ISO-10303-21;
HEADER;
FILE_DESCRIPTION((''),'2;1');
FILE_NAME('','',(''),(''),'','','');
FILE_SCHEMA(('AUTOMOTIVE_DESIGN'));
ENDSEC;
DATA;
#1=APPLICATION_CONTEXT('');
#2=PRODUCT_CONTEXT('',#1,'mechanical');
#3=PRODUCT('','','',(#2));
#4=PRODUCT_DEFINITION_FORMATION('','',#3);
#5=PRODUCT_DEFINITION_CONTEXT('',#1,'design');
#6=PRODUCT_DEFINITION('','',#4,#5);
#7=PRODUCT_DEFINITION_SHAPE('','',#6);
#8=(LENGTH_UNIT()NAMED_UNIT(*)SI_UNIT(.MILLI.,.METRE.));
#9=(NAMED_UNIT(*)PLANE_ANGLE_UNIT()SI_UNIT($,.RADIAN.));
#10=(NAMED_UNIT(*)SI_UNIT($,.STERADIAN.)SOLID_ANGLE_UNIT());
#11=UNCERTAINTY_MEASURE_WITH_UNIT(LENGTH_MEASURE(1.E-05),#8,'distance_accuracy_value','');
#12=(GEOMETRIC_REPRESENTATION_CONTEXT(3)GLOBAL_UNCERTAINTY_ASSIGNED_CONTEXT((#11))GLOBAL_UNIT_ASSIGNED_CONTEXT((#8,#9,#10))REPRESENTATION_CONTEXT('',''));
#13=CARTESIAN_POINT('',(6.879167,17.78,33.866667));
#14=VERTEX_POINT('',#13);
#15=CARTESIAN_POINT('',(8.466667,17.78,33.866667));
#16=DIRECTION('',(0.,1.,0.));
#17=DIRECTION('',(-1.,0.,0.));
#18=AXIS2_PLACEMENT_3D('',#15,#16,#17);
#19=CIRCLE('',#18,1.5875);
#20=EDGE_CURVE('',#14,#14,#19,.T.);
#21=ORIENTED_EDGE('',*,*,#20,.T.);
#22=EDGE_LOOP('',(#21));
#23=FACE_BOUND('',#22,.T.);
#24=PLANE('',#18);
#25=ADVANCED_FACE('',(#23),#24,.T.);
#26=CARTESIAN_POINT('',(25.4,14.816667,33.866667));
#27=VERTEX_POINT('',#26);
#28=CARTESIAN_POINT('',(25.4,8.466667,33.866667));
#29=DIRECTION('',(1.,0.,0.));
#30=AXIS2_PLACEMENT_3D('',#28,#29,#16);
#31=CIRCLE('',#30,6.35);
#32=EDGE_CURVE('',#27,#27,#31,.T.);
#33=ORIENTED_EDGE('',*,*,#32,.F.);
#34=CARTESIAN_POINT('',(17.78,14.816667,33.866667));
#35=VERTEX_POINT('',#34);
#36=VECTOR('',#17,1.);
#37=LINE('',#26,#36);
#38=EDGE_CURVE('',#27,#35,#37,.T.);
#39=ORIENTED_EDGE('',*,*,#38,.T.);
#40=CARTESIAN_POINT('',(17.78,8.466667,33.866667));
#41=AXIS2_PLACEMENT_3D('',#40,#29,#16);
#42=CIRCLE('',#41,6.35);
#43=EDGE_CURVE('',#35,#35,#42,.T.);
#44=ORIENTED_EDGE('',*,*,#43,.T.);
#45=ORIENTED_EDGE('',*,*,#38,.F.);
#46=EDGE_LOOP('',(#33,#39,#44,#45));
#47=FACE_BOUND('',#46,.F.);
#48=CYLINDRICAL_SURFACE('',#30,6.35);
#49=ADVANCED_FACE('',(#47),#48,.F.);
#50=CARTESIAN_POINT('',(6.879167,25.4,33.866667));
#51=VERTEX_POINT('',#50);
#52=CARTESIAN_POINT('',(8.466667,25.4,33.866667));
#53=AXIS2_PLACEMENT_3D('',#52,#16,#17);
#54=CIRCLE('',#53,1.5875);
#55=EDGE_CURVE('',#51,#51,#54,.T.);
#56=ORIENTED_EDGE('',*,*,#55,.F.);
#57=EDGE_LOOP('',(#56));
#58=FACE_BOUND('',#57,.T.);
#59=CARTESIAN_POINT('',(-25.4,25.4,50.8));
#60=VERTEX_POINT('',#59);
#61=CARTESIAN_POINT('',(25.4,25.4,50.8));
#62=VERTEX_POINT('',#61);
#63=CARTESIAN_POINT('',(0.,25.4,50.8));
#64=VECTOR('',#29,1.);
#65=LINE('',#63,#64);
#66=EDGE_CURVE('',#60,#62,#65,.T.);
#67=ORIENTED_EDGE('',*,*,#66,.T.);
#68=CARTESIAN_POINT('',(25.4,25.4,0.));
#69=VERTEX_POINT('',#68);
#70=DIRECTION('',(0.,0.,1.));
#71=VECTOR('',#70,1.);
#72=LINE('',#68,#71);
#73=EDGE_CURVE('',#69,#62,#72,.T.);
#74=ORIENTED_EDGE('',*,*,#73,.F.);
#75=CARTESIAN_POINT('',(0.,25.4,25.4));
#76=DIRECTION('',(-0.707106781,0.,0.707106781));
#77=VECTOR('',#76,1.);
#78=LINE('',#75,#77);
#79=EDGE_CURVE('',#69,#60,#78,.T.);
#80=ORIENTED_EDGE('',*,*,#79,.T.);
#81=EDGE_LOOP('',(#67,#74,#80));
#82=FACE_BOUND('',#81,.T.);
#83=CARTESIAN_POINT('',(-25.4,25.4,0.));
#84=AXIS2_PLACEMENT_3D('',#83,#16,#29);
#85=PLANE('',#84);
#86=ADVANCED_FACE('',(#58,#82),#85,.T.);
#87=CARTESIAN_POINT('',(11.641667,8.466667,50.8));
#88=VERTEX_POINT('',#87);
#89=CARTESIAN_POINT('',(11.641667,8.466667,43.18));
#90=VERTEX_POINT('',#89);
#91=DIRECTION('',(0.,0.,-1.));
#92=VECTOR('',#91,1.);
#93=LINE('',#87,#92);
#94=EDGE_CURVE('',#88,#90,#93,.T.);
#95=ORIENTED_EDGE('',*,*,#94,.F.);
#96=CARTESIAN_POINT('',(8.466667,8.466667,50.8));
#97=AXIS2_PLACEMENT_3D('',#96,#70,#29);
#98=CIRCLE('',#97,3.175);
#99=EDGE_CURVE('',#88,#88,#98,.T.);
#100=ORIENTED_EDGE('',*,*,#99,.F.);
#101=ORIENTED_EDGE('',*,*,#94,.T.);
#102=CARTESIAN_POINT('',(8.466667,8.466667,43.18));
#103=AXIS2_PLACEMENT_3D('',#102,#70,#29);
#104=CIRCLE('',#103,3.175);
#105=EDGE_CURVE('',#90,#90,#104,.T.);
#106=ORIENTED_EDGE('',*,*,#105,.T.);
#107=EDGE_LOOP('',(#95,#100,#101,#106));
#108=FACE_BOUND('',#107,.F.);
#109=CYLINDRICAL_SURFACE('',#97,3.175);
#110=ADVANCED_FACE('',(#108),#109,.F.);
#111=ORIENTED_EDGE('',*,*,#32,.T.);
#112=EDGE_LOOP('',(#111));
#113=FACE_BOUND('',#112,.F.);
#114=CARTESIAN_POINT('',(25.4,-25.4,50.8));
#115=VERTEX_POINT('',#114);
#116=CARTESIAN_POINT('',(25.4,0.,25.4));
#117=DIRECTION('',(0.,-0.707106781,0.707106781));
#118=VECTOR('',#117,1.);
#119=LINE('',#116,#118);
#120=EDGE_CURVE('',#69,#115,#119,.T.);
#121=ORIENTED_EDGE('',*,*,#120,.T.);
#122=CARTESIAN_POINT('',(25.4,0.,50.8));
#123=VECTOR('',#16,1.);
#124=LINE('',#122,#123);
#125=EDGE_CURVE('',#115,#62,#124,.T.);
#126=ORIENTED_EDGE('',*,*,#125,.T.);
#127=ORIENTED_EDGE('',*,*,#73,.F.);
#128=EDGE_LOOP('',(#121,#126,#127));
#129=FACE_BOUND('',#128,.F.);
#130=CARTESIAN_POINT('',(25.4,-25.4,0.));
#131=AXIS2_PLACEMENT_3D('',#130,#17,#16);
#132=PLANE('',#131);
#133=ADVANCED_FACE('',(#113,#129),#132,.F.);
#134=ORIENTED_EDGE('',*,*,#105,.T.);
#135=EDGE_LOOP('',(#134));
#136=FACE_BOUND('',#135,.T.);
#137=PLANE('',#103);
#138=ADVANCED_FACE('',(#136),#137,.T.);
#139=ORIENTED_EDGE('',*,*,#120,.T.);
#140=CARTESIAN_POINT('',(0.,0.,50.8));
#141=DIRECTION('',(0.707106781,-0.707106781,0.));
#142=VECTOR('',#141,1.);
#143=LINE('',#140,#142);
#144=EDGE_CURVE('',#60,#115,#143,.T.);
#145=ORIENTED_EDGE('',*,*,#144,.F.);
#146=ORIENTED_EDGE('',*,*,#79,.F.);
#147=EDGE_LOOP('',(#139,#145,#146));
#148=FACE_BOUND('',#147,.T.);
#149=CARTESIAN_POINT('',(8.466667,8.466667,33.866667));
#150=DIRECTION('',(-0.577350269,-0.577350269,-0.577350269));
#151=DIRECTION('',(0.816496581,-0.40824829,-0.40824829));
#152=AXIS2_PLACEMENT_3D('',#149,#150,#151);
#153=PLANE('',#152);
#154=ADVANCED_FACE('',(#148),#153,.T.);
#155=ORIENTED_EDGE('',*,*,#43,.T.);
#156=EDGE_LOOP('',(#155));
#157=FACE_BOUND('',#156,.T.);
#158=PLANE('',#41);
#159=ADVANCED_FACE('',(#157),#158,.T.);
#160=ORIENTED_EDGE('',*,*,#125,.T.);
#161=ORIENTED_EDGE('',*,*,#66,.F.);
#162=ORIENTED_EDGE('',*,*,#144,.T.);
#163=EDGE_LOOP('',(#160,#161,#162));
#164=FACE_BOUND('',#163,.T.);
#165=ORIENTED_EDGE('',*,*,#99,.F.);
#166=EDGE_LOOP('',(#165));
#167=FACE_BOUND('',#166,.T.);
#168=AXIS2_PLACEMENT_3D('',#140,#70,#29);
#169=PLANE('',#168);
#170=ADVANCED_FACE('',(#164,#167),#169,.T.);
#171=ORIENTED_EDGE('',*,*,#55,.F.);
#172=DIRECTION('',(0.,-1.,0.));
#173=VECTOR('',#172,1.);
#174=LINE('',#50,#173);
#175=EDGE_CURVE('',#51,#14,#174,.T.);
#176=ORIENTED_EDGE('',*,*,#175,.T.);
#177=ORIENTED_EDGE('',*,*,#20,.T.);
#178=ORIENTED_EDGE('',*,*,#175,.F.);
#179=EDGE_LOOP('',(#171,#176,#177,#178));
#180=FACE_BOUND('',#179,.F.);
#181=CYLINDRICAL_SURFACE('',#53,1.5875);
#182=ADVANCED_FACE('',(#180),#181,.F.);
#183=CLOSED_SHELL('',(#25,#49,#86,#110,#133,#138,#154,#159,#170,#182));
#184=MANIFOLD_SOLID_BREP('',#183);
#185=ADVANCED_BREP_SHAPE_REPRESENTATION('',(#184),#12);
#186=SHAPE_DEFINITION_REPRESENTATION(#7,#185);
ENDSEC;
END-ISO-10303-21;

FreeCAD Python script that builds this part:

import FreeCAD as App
import Part
import Sketcher
Q = App.Units.Quantity


def add_polygon(sketch, points):
    """Adds a closed chain of lines whose ends are joined by coincident constraints."""
    first, n = sketch.GeometryCount, len(points)
    for a, b in zip(points, points[1:] + points[:1]):
        sketch.addGeometry(Part.LineSegment(App.Vector(*a, 0), App.Vector(*b, 0)), False)
    for i in range(n):
        sketch.addConstraint(Sketcher.Constraint("Coincident", first + i, 2, first + (i + 1) % n, 1))

doc = App.newDocument("Part")
body = doc.addObject("PartDesign::Body", "Body")

sketch1 = body.newObject("Sketcher::SketchObject", "Sketch")
sketch1.AttachmentSupport = (doc.getObject("XY_Plane"), [""])
sketch1.MapMode = "FlatFace"
add_polygon(sketch1, [(-25.4, 25.4), (-25.4, -25.4), (25.4, -25.4), (25.4, 25.4)])
sketch1.addConstraint([
    Sketcher.Constraint("Vertical", 0),
    Sketcher.Constraint("Horizontal", 1),
    Sketcher.Constraint("Vertical", 2),
    Sketcher.Constraint("Horizontal", 3),
    Sketcher.Constraint("Symmetric", 0, 2, 2, 2, -1, 1),
    Sketcher.Constraint("Equal", 3, 0),
    Sketcher.Constraint("DistanceX", 1, 1, 1, 2, Q("2 in")),
])
pad1 = body.newObject("PartDesign::Pad", "Pad")
pad1.Profile = sketch1
pad1.Length = Q("2 in")

sketch2 = body.newObject("Sketcher::SketchObject", "Sketch001")
sketch2.Placement = App.Placement(App.Vector(16.933333, 16.933333, 16.933333), App.Rotation(App.Vector(0.816496581, -0.40824829, -0.40824829), App.Vector(0, -0.707106781, 0.707106781), App.Vector(-0.577350269, -0.577350269, -0.577350269), "ZXY"))
add_polygon(sketch2, [(-51.847533, 17.960512), (-31.10852, -17.960512), (10.369507, -17.960512), (31.10852, 17.960512), (10.369507, 53.881537), (-31.10852, 53.881537)])
sketch2.addConstraint([
    Sketcher.Constraint("Horizontal", 1),
    Sketcher.Constraint("Horizontal", 4),
    Sketcher.Constraint("Symmetric", 0, 2, 2, 2, -1, 1),
    Sketcher.Constraint("Parallel", 0, 3),
    Sketcher.Constraint("Parallel", 2, 5),
    Sketcher.Constraint("Horizontal", 2, 2, 5, 2),
    Sketcher.Constraint("Vertical", 1, 2, 3, 2),
    Sketcher.Constraint("Vertical", 0, 2, 4, 2),
    Sketcher.Constraint("Angle", 0, Q("-60 deg")),
    Sketcher.Constraint("DistanceX", 1, 1, 1, 2, Q("41.478026 mm")),
    Sketcher.Constraint("DistanceX", 0, 2, -1, 1, Q("31.10852 mm")),
])
pocket1 = body.newObject("PartDesign::Pocket", "Pocket")
pocket1.Profile = sketch2
pocket1.Type = "ThroughAll"
pocket1.Reversed = True

sketch3 = body.newObject("Sketcher::SketchObject", "Sketch002")
sketch3.AttachmentSupport = (doc.getObject("YZ_Plane"), [""])
sketch3.MapMode = "FlatFace"
sketch3.AttachmentOffset = App.Placement(App.Vector(0, 0, 1 * 25.4), App.Rotation())
sketch3.addGeometry(Part.Circle(App.Vector(8.466667, 33.866667, 0), App.Vector(0, 0, 1), 6.35), False)
sketch3.addConstraint([
    Sketcher.Constraint("Diameter", 0, Q("0.5 in")),
    Sketcher.Constraint("DistanceX", -1, 1, 0, 3, Q("8.466667 mm")),
    Sketcher.Constraint("DistanceY", -1, 1, 0, 3, Q("33.866667 mm")),
])
pocket2 = body.newObject("PartDesign::Pocket", "Pocket001")
pocket2.Profile = sketch3
pocket2.Length = Q("0.3 in")

sketch4 = body.newObject("Sketcher::SketchObject", "Sketch003")
sketch4.AttachmentSupport = (doc.getObject("XY_Plane"), [""])
sketch4.MapMode = "FlatFace"
sketch4.AttachmentOffset = App.Placement(App.Vector(0, 0, 2 * 25.4), App.Rotation())
sketch4.addGeometry(Part.Circle(App.Vector(8.466667, 8.466667, 0), App.Vector(0, 0, 1), 3.175), False)
sketch4.addConstraint([
    Sketcher.Constraint("Diameter", 0, Q("0.25 in")),
    Sketcher.Constraint("DistanceX", -1, 1, 0, 3, Q("8.466667 mm")),
    Sketcher.Constraint("DistanceY", -1, 1, 0, 3, Q("8.466667 mm")),
])
pocket3 = body.newObject("PartDesign::Pocket", "Pocket002")
pocket3.Profile = sketch4
pocket3.Length = Q("0.3 in")

sketch5 = body.newObject("Sketcher::SketchObject", "Sketch004")
sketch5.AttachmentSupport = (doc.getObject("XZ_Plane"), [""])
sketch5.MapMode = "FlatFace"
sketch5.AttachmentOffset = App.Placement(App.Vector(0, 0, -1 * 25.4), App.Rotation())
sketch5.addGeometry(Part.Circle(App.Vector(8.466667, 33.866667, 0), App.Vector(0, 0, 1), 1.5875), False)
sketch5.addConstraint([
    Sketcher.Constraint("Diameter", 0, Q("0.125 in")),
    Sketcher.Constraint("DistanceX", -1, 1, 0, 3, Q("8.466667 mm")),
    Sketcher.Constraint("DistanceY", -1, 1, 0, 3, Q("33.866667 mm")),
])
pocket4 = body.newObject("PartDesign::Pocket", "Pocket003")
pocket4.Profile = sketch5
pocket4.Length = Q("0.3 in")
pocket4.Reversed = True

doc.recompute()
